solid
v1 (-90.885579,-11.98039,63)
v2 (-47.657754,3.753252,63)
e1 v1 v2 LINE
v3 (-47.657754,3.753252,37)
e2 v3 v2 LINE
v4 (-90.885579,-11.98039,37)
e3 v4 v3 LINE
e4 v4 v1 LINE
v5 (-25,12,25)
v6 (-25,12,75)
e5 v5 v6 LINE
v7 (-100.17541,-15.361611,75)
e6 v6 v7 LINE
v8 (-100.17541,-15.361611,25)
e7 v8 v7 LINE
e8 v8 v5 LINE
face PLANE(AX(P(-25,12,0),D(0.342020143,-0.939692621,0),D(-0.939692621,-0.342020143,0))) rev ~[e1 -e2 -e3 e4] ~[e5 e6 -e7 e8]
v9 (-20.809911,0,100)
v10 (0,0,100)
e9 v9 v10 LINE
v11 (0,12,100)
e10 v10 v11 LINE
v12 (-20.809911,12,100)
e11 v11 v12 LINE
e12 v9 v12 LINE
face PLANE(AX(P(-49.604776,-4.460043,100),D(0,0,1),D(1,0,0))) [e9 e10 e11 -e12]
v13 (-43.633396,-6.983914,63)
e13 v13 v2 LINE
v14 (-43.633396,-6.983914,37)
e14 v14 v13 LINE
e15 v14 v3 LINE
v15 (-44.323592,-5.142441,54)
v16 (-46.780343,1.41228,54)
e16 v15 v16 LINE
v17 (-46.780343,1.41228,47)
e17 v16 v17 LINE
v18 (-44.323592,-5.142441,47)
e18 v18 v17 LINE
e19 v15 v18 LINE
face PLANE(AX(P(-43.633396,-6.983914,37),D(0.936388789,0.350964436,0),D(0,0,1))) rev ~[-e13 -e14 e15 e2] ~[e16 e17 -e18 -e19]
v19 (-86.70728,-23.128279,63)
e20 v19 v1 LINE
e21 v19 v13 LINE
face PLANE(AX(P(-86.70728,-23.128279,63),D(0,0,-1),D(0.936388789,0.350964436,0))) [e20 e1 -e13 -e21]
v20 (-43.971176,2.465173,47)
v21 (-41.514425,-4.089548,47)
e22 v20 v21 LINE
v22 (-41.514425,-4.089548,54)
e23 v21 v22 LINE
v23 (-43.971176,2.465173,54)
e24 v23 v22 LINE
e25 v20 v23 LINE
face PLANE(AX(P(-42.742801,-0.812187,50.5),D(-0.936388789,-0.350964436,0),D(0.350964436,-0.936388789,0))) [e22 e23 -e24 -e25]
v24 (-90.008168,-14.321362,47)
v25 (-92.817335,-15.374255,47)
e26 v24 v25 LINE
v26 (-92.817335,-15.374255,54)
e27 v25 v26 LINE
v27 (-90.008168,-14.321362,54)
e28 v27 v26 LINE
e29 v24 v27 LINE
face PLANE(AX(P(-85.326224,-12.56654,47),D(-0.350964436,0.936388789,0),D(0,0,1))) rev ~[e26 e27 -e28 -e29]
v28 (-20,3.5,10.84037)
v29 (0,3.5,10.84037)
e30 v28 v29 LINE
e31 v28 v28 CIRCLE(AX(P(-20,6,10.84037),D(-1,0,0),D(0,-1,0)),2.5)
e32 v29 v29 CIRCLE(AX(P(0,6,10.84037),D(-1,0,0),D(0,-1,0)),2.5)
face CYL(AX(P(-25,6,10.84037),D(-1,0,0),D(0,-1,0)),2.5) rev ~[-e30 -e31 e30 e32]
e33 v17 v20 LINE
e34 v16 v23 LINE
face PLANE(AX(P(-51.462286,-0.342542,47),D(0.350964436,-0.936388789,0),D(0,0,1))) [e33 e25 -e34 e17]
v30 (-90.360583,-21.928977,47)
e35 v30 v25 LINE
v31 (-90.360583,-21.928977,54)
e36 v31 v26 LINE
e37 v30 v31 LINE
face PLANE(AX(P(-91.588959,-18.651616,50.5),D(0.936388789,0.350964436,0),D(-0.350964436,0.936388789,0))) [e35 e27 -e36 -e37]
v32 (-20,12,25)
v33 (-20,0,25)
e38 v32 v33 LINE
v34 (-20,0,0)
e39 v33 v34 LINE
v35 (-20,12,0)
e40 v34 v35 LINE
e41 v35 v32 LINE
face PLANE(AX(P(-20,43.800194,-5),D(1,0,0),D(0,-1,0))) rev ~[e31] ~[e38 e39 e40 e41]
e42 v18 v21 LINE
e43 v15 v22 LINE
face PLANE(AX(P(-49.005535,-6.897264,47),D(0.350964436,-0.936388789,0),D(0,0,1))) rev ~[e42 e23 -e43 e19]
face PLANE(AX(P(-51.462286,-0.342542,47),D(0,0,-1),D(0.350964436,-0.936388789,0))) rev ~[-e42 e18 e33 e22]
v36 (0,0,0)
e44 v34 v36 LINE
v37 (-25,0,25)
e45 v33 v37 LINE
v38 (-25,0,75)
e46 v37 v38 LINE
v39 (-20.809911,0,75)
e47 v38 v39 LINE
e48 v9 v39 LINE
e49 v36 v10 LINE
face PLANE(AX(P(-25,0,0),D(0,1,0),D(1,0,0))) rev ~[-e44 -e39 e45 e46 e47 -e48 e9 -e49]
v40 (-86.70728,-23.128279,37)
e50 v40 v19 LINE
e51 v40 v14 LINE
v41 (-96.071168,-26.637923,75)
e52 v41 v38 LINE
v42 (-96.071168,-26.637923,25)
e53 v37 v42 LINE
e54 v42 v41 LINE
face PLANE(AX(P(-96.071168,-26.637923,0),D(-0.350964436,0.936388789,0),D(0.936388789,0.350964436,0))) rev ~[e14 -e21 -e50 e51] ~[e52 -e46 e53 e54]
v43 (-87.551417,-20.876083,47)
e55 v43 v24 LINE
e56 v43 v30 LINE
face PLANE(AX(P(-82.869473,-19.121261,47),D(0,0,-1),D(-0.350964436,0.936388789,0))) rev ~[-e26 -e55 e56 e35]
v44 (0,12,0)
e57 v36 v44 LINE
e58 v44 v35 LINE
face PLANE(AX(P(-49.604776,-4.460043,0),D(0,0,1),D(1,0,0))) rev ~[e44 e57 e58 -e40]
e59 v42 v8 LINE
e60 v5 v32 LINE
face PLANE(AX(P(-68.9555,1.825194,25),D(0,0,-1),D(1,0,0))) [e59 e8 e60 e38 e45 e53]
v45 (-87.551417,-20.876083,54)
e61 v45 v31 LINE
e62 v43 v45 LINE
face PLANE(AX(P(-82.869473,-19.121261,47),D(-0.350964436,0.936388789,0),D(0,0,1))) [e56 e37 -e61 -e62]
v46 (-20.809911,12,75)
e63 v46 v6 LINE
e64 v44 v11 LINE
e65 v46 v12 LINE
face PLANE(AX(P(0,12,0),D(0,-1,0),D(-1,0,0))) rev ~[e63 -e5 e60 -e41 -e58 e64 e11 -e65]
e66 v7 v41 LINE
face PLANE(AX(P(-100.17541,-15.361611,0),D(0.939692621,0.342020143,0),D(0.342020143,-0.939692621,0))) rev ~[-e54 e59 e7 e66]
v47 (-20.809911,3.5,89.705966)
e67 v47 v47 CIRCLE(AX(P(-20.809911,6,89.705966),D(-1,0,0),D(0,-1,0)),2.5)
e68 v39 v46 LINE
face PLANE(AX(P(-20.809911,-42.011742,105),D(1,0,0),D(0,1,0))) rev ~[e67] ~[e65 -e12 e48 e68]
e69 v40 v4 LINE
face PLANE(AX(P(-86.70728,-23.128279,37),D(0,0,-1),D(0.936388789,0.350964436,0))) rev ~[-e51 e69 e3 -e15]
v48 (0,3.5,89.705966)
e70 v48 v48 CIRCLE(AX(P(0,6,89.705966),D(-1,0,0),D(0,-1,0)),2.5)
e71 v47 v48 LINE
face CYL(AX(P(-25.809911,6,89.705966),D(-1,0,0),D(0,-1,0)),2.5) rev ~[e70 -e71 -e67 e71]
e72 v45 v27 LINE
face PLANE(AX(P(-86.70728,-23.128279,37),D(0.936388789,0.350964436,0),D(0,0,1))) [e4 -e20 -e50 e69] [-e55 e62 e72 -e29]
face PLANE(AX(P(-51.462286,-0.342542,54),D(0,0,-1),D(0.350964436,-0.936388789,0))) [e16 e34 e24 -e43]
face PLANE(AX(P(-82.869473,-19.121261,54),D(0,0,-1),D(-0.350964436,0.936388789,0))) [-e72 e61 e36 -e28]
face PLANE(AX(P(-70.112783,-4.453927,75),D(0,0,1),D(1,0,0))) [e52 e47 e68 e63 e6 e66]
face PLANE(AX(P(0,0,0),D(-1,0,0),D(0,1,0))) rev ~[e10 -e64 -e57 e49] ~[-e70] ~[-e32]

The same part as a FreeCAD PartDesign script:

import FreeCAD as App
import Part
import Sketcher
Q = App.Units.Quantity

doc = App.newDocument("Part")
body = doc.addObject("PartDesign::Body", "Body")

# Sketch on XY plane
sketch1 = body.newObject("Sketcher::SketchObject", "Sketch")
sketch1.AttachmentSupport = (doc.getObject("XY_Plane"), [""])
sketch1.MapMode = "FlatFace"
sketch1.addGeometry([
    Part.LineSegment(App.Vector(-25, 0, 0), App.Vector(0, 0, 0)),  # 0
    Part.LineSegment(App.Vector(0, 0, 0), App.Vector(0, 12, 0)),  # 1
    Part.LineSegment(App.Vector(0, 12, 0), App.Vector(-25, 12, 0)),  # 2
    Part.LineSegment(App.Vector(-25, 12, 0), App.Vector(-100, -15, 0)),  # 3
    Part.LineSegment(App.Vector(-100, -15, 0), App.Vector(-96, -27, 0)),  # 4
    Part.LineSegment(App.Vector(-96, -27, 0), App.Vector(-25, 0, 0)),  # 5
], False)
sketch1.addConstraint([
    Sketcher.Constraint("Coincident", 0, 2, 1, 1),
    Sketcher.Constraint("Coincident", 1, 2, 2, 1),
    Sketcher.Constraint("Coincident", 2, 2, 3, 1),
    Sketcher.Constraint("Coincident", 3, 2, 4, 1),
    Sketcher.Constraint("Coincident", 4, 2, 5, 1),
    Sketcher.Constraint("Coincident", 5, 2, 0, 1),
    Sketcher.Constraint("Horizontal", 0),
    Sketcher.Constraint("Vertical", 1),
    Sketcher.Constraint("Horizontal", 2),
    Sketcher.Constraint("Coincident", 0, 2, -1, 1),
    Sketcher.Constraint("Perpendicular", 3, 4),
    Sketcher.Constraint("Vertical", 2, 2, 5, 2),
    Sketcher.Constraint("DistanceX", 0, 1, 0, 2, 25.0),
    Sketcher.Constraint("DistanceY", 1, 1, 1, 2, 12.0),
    Sketcher.Constraint("Angle", 3, Q("-160 deg")),
    Sketcher.Constraint("Distance", 3, 80.0),
    Sketcher.Constraint("Distance", 4, 12.0),
])
pad1 = body.newObject("PartDesign::Pad", "Pad")
pad1.Profile = sketch1
pad1.Length = 100

# Sketch on an angled plane
sketch2 = body.newObject("Sketcher::SketchObject", "Sketch001")
sketch2.Placement = App.Placement(App.Vector(-3.079401, 8.215979, 0), App.Rotation(App.Vector(0.936388789, 0.350964436, 0), App.Vector(0, 0, 1), App.Vector(0.350964436, -0.936388789, 0), "ZXY"))
sketch2.addGeometry([
    Part.LineSegment(App.Vector(-89, 63, 0), App.Vector(-89, 37, 0)),
    Part.LineSegment(App.Vector(-89, 37, 0), App.Vector(-43, 37, 0)),
    Part.LineSegment(App.Vector(-43, 37, 0), App.Vector(-43, 63, 0)),
    Part.LineSegment(App.Vector(-43, 63, 0), App.Vector(-89, 63, 0)),
], False)
sketch2.addConstraint([
    Sketcher.Constraint("Coincident", 0, 2, 1, 1),
    Sketcher.Constraint("Coincident", 1, 2, 2, 1),
    Sketcher.Constraint("Coincident", 2, 2, 3, 1),
    Sketcher.Constraint("Coincident", 3, 2, 0, 1),
    Sketcher.Constraint("Vertical", 0),
    Sketcher.Constraint("Horizontal", 1),
    Sketcher.Constraint("Vertical", 2),
    Sketcher.Constraint("Horizontal", 3),
    Sketcher.Constraint("DistanceX", 1, 1, 1, 2, 46.0),
    Sketcher.Constraint("DistanceY", 0, 2, 0, 1, 26.0),
    Sketcher.Constraint("DistanceY", -1, 1, 0, 2, 37.0),
    Sketcher.Constraint("DistanceX", 0, 2, -1, 1, 89.308928),
])
pocket1 = body.newObject("PartDesign::Pocket", "Pocket")
pocket1.Profile = sketch2
pocket1.Length = 25

# Sketch on XY plane
sketch3 = body.newObject("Sketcher::SketchObject", "Sketch002")
sketch3.AttachmentSupport = (doc.getObject("XY_Plane"), [""])
sketch3.MapMode = "FlatFace"
sketch3.AttachmentOffset = App.Placement(App.Vector(0, 0, 105), App.Rotation())
sketch3.addGeometry([
    Part.LineSegment(App.Vector(-119, 33, 0), App.Vector(-119, -42, 0)),
    Part.LineSegment(App.Vector(-119, -42, 0), App.Vector(-21, -42, 0)),
    Part.LineSegment(App.Vector(-21, -42, 0), App.Vector(-21, 33, 0)),
    Part.LineSegment(App.Vector(-21, 33, 0), App.Vector(-119, 33, 0)),
], False)
sketch3.addConstraint([
    Sketcher.Constraint("Coincident", 0, 2, 1, 1),
    Sketcher.Constraint("Coincident", 1, 2, 2, 1),
    Sketcher.Constraint("Coincident", 2, 2, 3, 1),
    Sketcher.Constraint("Coincident", 3, 2, 0, 1),
    Sketcher.Constraint("Vertical", 0),
    Sketcher.Constraint("Horizontal", 1),
    Sketcher.Constraint("Vertical", 2),
    Sketcher.Constraint("Horizontal", 3),
    Sketcher.Constraint("DistanceY", 0, 2, 0, 1, 75.115629),
    Sketcher.Constraint("DistanceX", 1, 1, 1, 2, 98.605745),
    Sketcher.Constraint("DistanceY", 0, 2, -1, 1, 42.011742),
    Sketcher.Constraint("DistanceX", 1, 2, -1, 1, 20.809911),
])
pocket2 = body.newObject("PartDesign::Pocket", "Pocket001")
pocket2.Profile = sketch3
pocket2.Length = 30

# Sketch on XY plane
sketch4 = body.newObject("Sketcher::SketchObject", "Sketch003")
sketch4.AttachmentSupport = (doc.getObject("XY_Plane"), [""])
sketch4.MapMode = "FlatFace"
sketch4.AttachmentOffset = App.Placement(App.Vector(0, 0, -5), App.Rotation())
sketch4.addGeometry([
    Part.LineSegment(App.Vector(-118, -40, 0), App.Vector(-118, 44, 0)),
    Part.LineSegment(App.Vector(-118, 44, 0), App.Vector(-20, 44, 0)),
    Part.LineSegment(App.Vector(-20, 44, 0), App.Vector(-20, -40, 0)),
    Part.LineSegment(App.Vector(-20, -40, 0), App.Vector(-118, -40, 0)),
], False)
sketch4.addConstraint([
    Sketcher.Constraint("Coincident", 0, 2, 1, 1),
    Sketcher.Constraint("Coincident", 1, 2, 2, 1),
    Sketcher.Constraint("Coincident", 2, 2, 3, 1),
    Sketcher.Constraint("Coincident", 3, 2, 0, 1),
    Sketcher.Constraint("Vertical", 0),
    Sketcher.Constraint("Horizontal", 1),
    Sketcher.Constraint("Vertical", 2),
    Sketcher.Constraint("Horizontal", 3),
    Sketcher.Constraint("DistanceX", 1, 2, -1, 1, 20.0),
    Sketcher.Constraint("DistanceY", 0, 1, 0, 2, 83.95),
    Sketcher.Constraint("DistanceX", 1, 1, 1, 2, 97.911),
    Sketcher.Constraint("DistanceY", -1, 1, 0, 2, 43.800194),
])
pocket3 = body.newObject("PartDesign::Pocket", "Pocket002")
pocket3.Profile = sketch4
pocket3.Length = 30
pocket3.Reversed = True

# Sketch on YZ plane
sketch5 = body.newObject("Sketcher::SketchObject", "Sketch004")
sketch5.AttachmentSupport = (doc.getObject("YZ_Plane"), [""])
sketch5.MapMode = "FlatFace"
sketch5.AttachmentOffset = App.Placement(App.Vector(0, 0, -25), App.Rotation())
sketch5.addGeometry(Part.Circle(App.Vector(6, 10.8, 0), App.Vector(0, 0, 1), 2.5), False)
sketch5.addConstraint([
    Sketcher.Constraint("Diameter", 0, 5.0),
    Sketcher.Constraint("DistanceX", -1, 1, 0, 3, 6.0),
    Sketcher.Constraint("DistanceY", -1, 1, 0, 3, 10.84037),
])
pocket4 = body.newObject("PartDesign::Pocket", "Pocket003")
pocket4.Profile = sketch5
pocket4.Length = 30
pocket4.Reversed = True

# Sketch on YZ plane
sketch6 = body.newObject("Sketcher::SketchObject", "Sketch005")
sketch6.AttachmentSupport = (doc.getObject("YZ_Plane"), [""])
sketch6.MapMode = "FlatFace"
sketch6.AttachmentOffset = App.Placement(App.Vector(0, 0, -25.809911), App.Rotation())
sketch6.addGeometry(Part.Circle(App.Vector(6, 89.7, 0), App.Vector(0, 0, 1), 2.5), False)
sketch6.addConstraint([
    Sketcher.Constraint("Diameter", 0, 5.0),
    Sketcher.Constraint("DistanceX", -1, 1, 0, 3, 6.0),
    Sketcher.Constraint("DistanceY", -1, 1, 0, 3, 89.705966),
])
pocket5 = body.newObject("PartDesign::Pocket", "Pocket004")
pocket5.Profile = sketch6
pocket5.Length = 30
pocket5.Reversed = True

# Sketch on an angled plane
sketch7 = body.newObject("Sketcher::SketchObject", "Sketch006")
sketch7.Placement = App.Placement(App.Vector(-45.235939, -16.954716, 0), App.Rotation(App.Vector(0.350964436, -0.936388789, 0), App.Vector(0, 0, 1), App.Vector(-0.936388789, -0.350964436, 0), "ZXY"))
sketch7.addGeometry([
    Part.LineSegment(App.Vector(-18, 54, 0), App.Vector(-18, 47, 0)),
    Part.LineSegment(App.Vector(-18, 47, 0), App.Vector(-11, 47, 0)),
    Part.LineSegment(App.Vector(-11, 47, 0), App.Vector(-11, 54, 0)),
    Part.LineSegment(App.Vector(-11, 54, 0), App.Vector(-18, 54, 0)),
], False)
sketch7.addConstraint([
    Sketcher.Constraint("Coincident", 0, 2, 1, 1),
    Sketcher.Constraint("Coincident", 1, 2, 2, 1),
    Sketcher.Constraint("Coincident", 2, 2, 3, 1),
    Sketcher.Constraint("Coincident", 3, 2, 0, 1),
    Sketcher.Constraint("Vertical", 0),
    Sketcher.Constraint("Horizontal", 1),
    Sketcher.Constraint("Vertical", 2),
    Sketcher.Constraint("Horizontal", 3),
    Sketcher.Constraint("Equal", 3, 0),
    Sketcher.Constraint("DistanceX", 1, 1, 1, 2, 7.0),
    Sketcher.Constraint("DistanceY", -1, 1, 0, 2, 47.0),
    Sketcher.Constraint("DistanceX", 0, 2, -1, 1, 17.74068),
])
pocket6 = body.newObject("PartDesign::Pocket", "Pocket005")
pocket6.Profile = sketch7
pocket6.Length = 8

# Sketch on an angled plane
sketch8 = body.newObject("Sketcher::SketchObject", "Sketch007")
sketch8.Placement = App.Placement(App.Vector(-78.945935, -29.589435, 0), App.Rotation(App.Vector(-0.350964436, 0.936388789, 0), App.Vector(0, 0, 1), App.Vector(0.936388789, 0.350964436, 0), "ZXY"))
sketch8.addGeometry([
    Part.LineSegment(App.Vector(11, 54, 0), App.Vector(11, 47, 0)),
    Part.LineSegment(App.Vector(11, 47, 0), App.Vector(18, 47, 0)),
    Part.LineSegment(App.Vector(18, 47, 0), App.Vector(18, 54, 0)),
    Part.LineSegment(App.Vector(18, 54, 0), App.Vector(11, 54, 0)),
], False)
sketch8.addConstraint([
    Sketcher.Constraint("Coincident", 0, 2, 1, 1),
    Sketcher.Constraint("Coincident", 1, 2, 2, 1),
    Sketcher.Constraint("Coincident", 2, 2, 3, 1),
    Sketcher.Constraint("Coincident", 3, 2, 0, 1),
    Sketcher.Constraint("Vertical", 0),
    Sketcher.Constraint("Horizontal", 1),
    Sketcher.Constraint("Vertical", 2),
    Sketcher.Constraint("Horizontal", 3),
    Sketcher.Constraint("Equal", 3, 0),
    Sketcher.Constraint("DistanceX", 1, 1, 1, 2, 7.0),
    Sketcher.Constraint("DistanceY", -1, 1, 0, 2, 47.0),
    Sketcher.Constraint("DistanceX", -1, 1, 0, 2, 11.179303),
])
pocket7 = body.newObject("PartDesign::Pocket", "Pocket006")
pocket7.Profile = sketch8
pocket7.Length = 8

doc.recompute()
